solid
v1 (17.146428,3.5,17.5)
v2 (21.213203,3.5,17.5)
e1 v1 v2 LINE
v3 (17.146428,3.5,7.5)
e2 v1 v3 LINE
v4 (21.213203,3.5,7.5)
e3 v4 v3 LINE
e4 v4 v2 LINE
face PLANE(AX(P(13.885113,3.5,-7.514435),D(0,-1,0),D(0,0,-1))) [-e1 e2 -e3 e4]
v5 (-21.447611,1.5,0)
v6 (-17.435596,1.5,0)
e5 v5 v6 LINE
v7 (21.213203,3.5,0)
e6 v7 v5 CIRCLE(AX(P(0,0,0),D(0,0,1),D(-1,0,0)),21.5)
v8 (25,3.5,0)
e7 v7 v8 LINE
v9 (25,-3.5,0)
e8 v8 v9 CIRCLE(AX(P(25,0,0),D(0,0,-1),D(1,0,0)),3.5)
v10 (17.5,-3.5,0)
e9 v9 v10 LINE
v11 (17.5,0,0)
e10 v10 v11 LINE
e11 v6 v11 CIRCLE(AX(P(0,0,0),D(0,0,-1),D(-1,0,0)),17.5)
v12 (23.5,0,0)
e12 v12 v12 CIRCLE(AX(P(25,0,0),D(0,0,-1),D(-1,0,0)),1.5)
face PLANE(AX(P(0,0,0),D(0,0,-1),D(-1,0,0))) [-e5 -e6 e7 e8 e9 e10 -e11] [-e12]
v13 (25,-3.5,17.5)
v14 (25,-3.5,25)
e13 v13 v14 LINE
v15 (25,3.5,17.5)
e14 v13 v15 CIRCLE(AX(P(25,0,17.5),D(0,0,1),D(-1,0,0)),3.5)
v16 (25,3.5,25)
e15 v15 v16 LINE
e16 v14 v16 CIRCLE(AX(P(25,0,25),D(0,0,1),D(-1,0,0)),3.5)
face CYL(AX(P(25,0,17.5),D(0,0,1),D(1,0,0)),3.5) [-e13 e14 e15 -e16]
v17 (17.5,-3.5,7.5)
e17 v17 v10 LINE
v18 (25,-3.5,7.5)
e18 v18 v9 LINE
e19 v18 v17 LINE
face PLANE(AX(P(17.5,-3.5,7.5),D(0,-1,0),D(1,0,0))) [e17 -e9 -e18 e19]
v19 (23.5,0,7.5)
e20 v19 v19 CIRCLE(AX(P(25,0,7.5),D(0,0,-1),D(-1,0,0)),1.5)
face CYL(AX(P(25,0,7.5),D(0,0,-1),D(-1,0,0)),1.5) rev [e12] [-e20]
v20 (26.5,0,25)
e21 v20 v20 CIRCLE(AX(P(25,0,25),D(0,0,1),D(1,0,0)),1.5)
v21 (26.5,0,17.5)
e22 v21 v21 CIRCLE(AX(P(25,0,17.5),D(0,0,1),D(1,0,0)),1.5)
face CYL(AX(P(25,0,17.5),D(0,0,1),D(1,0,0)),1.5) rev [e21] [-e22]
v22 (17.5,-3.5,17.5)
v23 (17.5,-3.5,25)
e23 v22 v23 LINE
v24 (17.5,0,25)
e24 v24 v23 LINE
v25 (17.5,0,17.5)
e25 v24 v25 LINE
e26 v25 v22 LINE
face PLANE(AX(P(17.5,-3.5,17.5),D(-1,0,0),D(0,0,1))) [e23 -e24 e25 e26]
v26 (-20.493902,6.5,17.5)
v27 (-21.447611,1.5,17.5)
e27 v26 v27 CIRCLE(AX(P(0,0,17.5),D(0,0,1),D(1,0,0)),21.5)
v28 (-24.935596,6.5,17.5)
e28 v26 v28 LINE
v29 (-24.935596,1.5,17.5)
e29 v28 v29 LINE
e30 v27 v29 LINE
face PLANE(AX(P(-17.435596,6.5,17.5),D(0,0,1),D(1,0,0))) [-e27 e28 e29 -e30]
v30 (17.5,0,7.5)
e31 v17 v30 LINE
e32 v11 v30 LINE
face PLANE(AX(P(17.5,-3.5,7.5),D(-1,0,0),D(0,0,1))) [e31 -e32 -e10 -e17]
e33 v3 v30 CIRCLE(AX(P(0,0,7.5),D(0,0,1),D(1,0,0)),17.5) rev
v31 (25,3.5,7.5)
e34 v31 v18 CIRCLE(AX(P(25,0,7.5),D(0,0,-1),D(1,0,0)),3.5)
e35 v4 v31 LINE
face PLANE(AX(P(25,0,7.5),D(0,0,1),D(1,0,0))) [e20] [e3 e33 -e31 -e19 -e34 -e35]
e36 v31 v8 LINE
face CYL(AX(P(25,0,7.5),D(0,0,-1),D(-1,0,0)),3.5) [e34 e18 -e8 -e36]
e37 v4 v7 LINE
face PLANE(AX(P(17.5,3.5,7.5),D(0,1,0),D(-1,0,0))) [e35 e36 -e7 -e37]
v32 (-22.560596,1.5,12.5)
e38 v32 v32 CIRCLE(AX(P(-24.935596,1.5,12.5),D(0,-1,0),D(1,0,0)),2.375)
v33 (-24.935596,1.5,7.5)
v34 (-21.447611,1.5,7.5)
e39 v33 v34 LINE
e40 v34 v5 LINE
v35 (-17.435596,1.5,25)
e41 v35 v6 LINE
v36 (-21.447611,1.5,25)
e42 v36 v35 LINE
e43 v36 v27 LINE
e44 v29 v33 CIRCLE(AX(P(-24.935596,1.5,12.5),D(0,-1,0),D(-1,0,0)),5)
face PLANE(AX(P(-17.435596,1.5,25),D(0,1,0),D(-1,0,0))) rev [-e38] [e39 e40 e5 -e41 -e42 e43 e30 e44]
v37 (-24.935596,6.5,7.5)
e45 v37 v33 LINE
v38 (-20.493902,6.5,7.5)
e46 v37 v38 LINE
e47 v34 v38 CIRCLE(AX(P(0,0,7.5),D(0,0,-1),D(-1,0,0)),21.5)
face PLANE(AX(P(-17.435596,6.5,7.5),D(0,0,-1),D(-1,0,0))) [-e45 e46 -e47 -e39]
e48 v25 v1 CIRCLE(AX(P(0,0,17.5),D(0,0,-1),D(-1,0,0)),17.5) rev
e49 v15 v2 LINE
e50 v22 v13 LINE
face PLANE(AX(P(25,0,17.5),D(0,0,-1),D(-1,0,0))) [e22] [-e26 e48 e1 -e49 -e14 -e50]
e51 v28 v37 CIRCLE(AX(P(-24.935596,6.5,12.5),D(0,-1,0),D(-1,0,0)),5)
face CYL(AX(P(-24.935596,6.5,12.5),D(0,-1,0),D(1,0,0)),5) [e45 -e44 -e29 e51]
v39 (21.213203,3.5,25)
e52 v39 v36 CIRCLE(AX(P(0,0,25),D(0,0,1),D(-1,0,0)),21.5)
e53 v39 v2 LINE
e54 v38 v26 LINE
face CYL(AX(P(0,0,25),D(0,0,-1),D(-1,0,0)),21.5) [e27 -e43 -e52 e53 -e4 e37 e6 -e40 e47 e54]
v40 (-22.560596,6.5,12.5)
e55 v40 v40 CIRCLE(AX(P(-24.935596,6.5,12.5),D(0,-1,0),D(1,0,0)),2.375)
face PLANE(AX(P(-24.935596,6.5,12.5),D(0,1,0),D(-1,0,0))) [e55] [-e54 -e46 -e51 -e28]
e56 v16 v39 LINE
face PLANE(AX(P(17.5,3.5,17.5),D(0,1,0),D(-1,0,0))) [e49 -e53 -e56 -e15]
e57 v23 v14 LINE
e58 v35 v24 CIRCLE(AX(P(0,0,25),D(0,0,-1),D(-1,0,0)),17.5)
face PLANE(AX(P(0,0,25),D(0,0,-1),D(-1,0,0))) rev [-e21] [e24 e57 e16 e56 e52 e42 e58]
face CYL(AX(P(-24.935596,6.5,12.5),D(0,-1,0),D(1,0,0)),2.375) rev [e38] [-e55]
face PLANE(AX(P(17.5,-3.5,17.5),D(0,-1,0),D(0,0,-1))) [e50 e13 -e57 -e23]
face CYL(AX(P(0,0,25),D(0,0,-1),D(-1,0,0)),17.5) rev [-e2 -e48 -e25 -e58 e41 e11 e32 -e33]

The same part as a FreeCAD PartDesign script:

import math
import FreeCAD as App
import Part
import Sketcher

V = App.Vector
Q = App.Units.Quantity

doc = App.newDocument("Part")
body = doc.addObject("PartDesign::Body", "Body")

# Sketch on XY plane
sketch1 = doc.addObject("Sketcher::SketchObject", "Sketch")
body.addObject(sketch1)
sketch1.AttachmentSupport = (doc.XY_Plane, [""])
sketch1.MapMode = "FlatFace"
sketch1.addGeometry(Part.LineSegment(V(-21.447611, 1.5, 0), V(-17.435596, 1.5, 0)), False)
sketch1.addGeometry(Part.ArcOfCircle(Part.Circle(V(0, 0, 0), V(0, 0, 1), 17.5), math.radians(0), math.radians(175.0829)), False)
sketch1.addGeometry(Part.LineSegment(V(17.5, 0, 0), V(21.5, 0, 0)), False)
sketch1.addGeometry(Part.ArcOfCircle(Part.Circle(V(0, 0, 0), V(0, 0, 1), 21.5), math.radians(0), math.radians(175.99937)), False)
sketch1.addConstraint(Sketcher.Constraint("Coincident", 0, 2, 1, 2))
sketch1.addConstraint(Sketcher.Constraint("Coincident", 1, 1, 2, 1))
sketch1.addConstraint(Sketcher.Constraint("Coincident", 2, 2, 3, 1))
sketch1.addConstraint(Sketcher.Constraint("Coincident", 3, 2, 0, 1))
sketch1.addConstraint(Sketcher.Constraint("Horizontal", 0))
sketch1.addConstraint(Sketcher.Constraint("Horizontal", 2))
sketch1.addConstraint(Sketcher.Constraint("Coincident", 1, 3, -1, 1))
sketch1.addConstraint(Sketcher.Constraint("Coincident", 3, 3, -1, 1))
sketch1.addConstraint(Sketcher.Constraint("PointOnObject", 1, 1, -1))
sketch1.addConstraint(Sketcher.Constraint("Radius", 1, Q("17.5 mm")))
sketch1.addConstraint(Sketcher.Constraint("Radius", 3, Q("21.5 mm")))
sketch1.addConstraint(Sketcher.Constraint("DistanceY", -1, 1, 0, 2, Q("1.5 mm")))
pad1 = doc.addObject("PartDesign::Pad", "Pad")
body.addObject(pad1)
pad1.Profile = sketch1
pad1.Length = 25

# Sketch on XZ plane
sketch2 = doc.addObject("Sketcher::SketchObject", "Sketch001")
body.addObject(sketch2)
sketch2.AttachmentSupport = (doc.XZ_Plane, [""])
sketch2.MapMode = "FlatFace"
sketch2.AttachmentOffset = App.Placement(V(0, 0, -1.5), App.Rotation())
sketch2.addGeometry(Part.LineSegment(V(-24.935596, 7.5, 0), V(-17.435596, 7.5, 0)), False)
sketch2.addGeometry(Part.LineSegment(V(-17.435596, 7.5, 0), V(-17.435596, 17.5, 0)), False)
sketch2.addGeometry(Part.LineSegment(V(-17.435596, 17.5, 0), V(-24.935596, 17.5, 0)), False)
sketch2.addGeometry(Part.ArcOfCircle(Part.Circle(V(-24.935596, 12.5, 0), V(0, 0, 1), 5), math.radians(90), math.radians(270)), False)
sketch2.addGeometry(Part.Circle(V(-24.935596, 12.5, 0), V(0, 0, 1), 2.375), False)
sketch2.addConstraint(Sketcher.Constraint("Coincident", 0, 2, 1, 1))
sketch2.addConstraint(Sketcher.Constraint("Coincident", 1, 2, 2, 1))
sketch2.addConstraint(Sketcher.Constraint("Tangent", 2, 2, 3, 1))
sketch2.addConstraint(Sketcher.Constraint("Tangent", 3, 2, 0, 1))
sketch2.addConstraint(Sketcher.Constraint("Horizontal", 0))
sketch2.addConstraint(Sketcher.Constraint("Vertical", 1))
sketch2.addConstraint(Sketcher.Constraint("Horizontal", 2))
sketch2.addConstraint(Sketcher.Constraint("Coincident", 4, 3, 3, 3))
sketch2.addConstraint(Sketcher.Constraint("Radius", 3, Q("5 mm")))
sketch2.addConstraint(Sketcher.Constraint("Diameter", 4, Q("4.75 mm")))
sketch2.addConstraint(Sketcher.Constraint("DistanceX", 0, 1, 0, 2, Q("7.5 mm")))
sketch2.addConstraint(Sketcher.Constraint("DistanceY", -1, 1, 3, 3, Q("12.5 mm")))
sketch2.addConstraint(Sketcher.Constraint("DistanceX", 3, 3, -1, 1, Q("24.935596 mm")))
pad2 = doc.addObject("PartDesign::Pad", "Pad001")
body.addObject(pad2)
pad2.Profile = sketch2
pad2.Length = 5
pad2.Reversed = True

# Sketch on XY plane
sketch3 = doc.addObject("Sketcher::SketchObject", "Sketch002")
body.addObject(sketch3)
sketch3.AttachmentSupport = (doc.XY_Plane, [""])
sketch3.MapMode = "FlatFace"
sketch3.AttachmentOffset = App.Placement(V(0, 0, 25), App.Rotation())
sketch3.addGeometry(Part.LineSegment(V(17.5, -3.5, 0), V(25, -3.5, 0)), False)
sketch3.addGeometry(Part.ArcOfCircle(Part.Circle(V(25, 0, 0), V(0, 0, 1), 3.5), math.radians(-90), math.radians(90)), False)
sketch3.addGeometry(Part.LineSegment(V(25, 3.5, 0), V(17.5, 3.5, 0)), False)
sketch3.addGeometry(Part.LineSegment(V(17.5, 3.5, 0), V(17.5, -3.5, 0)), False)
sketch3.addGeometry(Part.Circle(V(25, 0, 0), V(0, 0, 1), 1.5), False)
sketch3.addConstraint(Sketcher.Constraint("Tangent", 0, 2, 1, 1))
sketch3.addConstraint(Sketcher.Constraint("Tangent", 1, 2, 2, 1))
sketch3.addConstraint(Sketcher.Constraint("Coincident", 2, 2, 3, 1))
sketch3.addConstraint(Sketcher.Constraint("Coincident", 3, 2, 0, 1))
sketch3.addConstraint(Sketcher.Constraint("Horizontal", 0))
sketch3.addConstraint(Sketcher.Constraint("Horizontal", 2))
sketch3.addConstraint(Sketcher.Constraint("Vertical", 3))
sketch3.addConstraint(Sketcher.Constraint("Coincident", 4, 3, 1, 3))
sketch3.addConstraint(Sketcher.Constraint("PointOnObject", 1, 3, -1))
sketch3.addConstraint(Sketcher.Constraint("Diameter", 4, Q("3 mm")))
sketch3.addConstraint(Sketcher.Constraint("Radius", 1, Q("3.5 mm")))
sketch3.addConstraint(Sketcher.Constraint("DistanceX", 0, 1, 0, 2, Q("7.5 mm")))
sketch3.addConstraint(Sketcher.Constraint("DistanceX", -1, 1, 1, 3, Q("25 mm")))
pad3 = doc.addObject("PartDesign::Pad", "Pad002")
body.addObject(pad3)
pad3.Profile = sketch3
pad3.Length = 7.5
pad3.Reversed = True

# Sketch on XY plane
sketch4 = doc.addObject("Sketcher::SketchObject", "Sketch003")
body.addObject(sketch4)
sketch4.AttachmentSupport = (doc.XY_Plane, [""])
sketch4.MapMode = "FlatFace"
sketch4.addGeometry(Part.LineSegment(V(25, -3.5, 0), V(17.5, -3.5, 0)), False)
sketch4.addGeometry(Part.LineSegment(V(17.5, -3.5, 0), V(17.5, 3.5, 0)), False)
sketch4.addGeometry(Part.LineSegment(V(17.5, 3.5, 0), V(25, 3.5, 0)), False)
sketch4.addGeometry(Part.ArcOfCircle(Part.Circle(V(25, 0, 0), V(0, 0, 1), 3.5), math.radians(-90), math.radians(90)), False)
sketch4.addGeometry(Part.Circle(V(25, 0, 0), V(0, 0, 1), 1.5), False)
sketch4.addConstraint(Sketcher.Constraint("Coincident", 0, 2, 1, 1))
sketch4.addConstraint(Sketcher.Constraint("Coincident", 1, 2, 2, 1))
sketch4.addConstraint(Sketcher.Constraint("Tangent", 2, 2, 3, 2))
sketch4.addConstraint(Sketcher.Constraint("Tangent", 3, 1, 0, 1))
sketch4.addConstraint(Sketcher.Constraint("Horizontal", 0))
sketch4.addConstraint(Sketcher.Constraint("Vertical", 1))
sketch4.addConstraint(Sketcher.Constraint("Horizontal", 2))
sketch4.addConstraint(Sketcher.Constraint("Coincident", 4, 3, 3, 3))
sketch4.addConstraint(Sketcher.Constraint("PointOnObject", 3, 3, -1))
sketch4.addConstraint(Sketcher.Constraint("Diameter", 4, Q("3 mm")))
sketch4.addConstraint(Sketcher.Constraint("Radius", 3, Q("3.5 mm")))
sketch4.addConstraint(Sketcher.Constraint("DistanceX", 0, 2, 0, 1, Q("7.5 mm")))
sketch4.addConstraint(Sketcher.Constraint("DistanceX", -1, 1, 3, 3, Q("25 mm")))
pad4 = doc.addObject("PartDesign::Pad", "Pad003")
body.addObject(pad4)
pad4.Profile = sketch4
pad4.Length = 7.5

# Sketch on XY plane
sketch5 = doc.addObject("Sketcher::SketchObject", "Sketch004")
body.addObject(sketch5)
sketch5.AttachmentSupport = (doc.XY_Plane, [""])
sketch5.MapMode = "FlatFace"
sketch5.AttachmentOffset = App.Placement(V(0, 0, 17.5), App.Rotation())
sketch5.addGeometry(Part.LineSegment(V(25, 3.5, 0), V(25, -6.594184, 0)), False)
sketch5.addGeometry(Part.LineSegment(V(25, -6.594184, 0), V(13.885113, -6.594184, 0)), False)
sketch5.addGeometry(Part.LineSegment(V(13.885113, -6.594184, 0), V(13.885113, 3.5, 0)), False)
sketch5.addGeometry(Part.LineSegment(V(13.885113, 3.5, 0), V(25, 3.5, 0)), False)
sketch5.addConstraint(Sketcher.Constraint("Coincident", 0, 2, 1, 1))
sketch5.addConstraint(Sketcher.Constraint("Coincident", 1, 2, 2, 1))
sketch5.addConstraint(Sketcher.Constraint("Coincident", 2, 2, 3, 1))
sketch5.addConstraint(Sketcher.Constraint("Coincident", 3, 2, 0, 1))
sketch5.addConstraint(Sketcher.Constraint("Vertical", 0))
sketch5.addConstraint(Sketcher.Constraint("Horizontal", 1))
sketch5.addConstraint(Sketcher.Constraint("Vertical", 2))
sketch5.addConstraint(Sketcher.Constraint("Horizontal", 3))
sketch5.addConstraint(Sketcher.Constraint("DistanceX", -1, 1, 0, 2, Q("25 mm")))
sketch5.addConstraint(Sketcher.Constraint("DistanceY", -1, 1, 2, 2, Q("3.5 mm")))
sketch5.addConstraint(Sketcher.Constraint("DistanceX", 1, 2, 1, 1, Q("11.114887 mm")))
sketch5.addConstraint(Sketcher.Constraint("DistanceY", 0, 2, 0, 1, Q("10.094184 mm")))
pocket1 = doc.addObject("PartDesign::Pocket", "Pocket")
body.addObject(pocket1)
pocket1.Profile = sketch5
pocket1.Length = 10

doc.recompute()
